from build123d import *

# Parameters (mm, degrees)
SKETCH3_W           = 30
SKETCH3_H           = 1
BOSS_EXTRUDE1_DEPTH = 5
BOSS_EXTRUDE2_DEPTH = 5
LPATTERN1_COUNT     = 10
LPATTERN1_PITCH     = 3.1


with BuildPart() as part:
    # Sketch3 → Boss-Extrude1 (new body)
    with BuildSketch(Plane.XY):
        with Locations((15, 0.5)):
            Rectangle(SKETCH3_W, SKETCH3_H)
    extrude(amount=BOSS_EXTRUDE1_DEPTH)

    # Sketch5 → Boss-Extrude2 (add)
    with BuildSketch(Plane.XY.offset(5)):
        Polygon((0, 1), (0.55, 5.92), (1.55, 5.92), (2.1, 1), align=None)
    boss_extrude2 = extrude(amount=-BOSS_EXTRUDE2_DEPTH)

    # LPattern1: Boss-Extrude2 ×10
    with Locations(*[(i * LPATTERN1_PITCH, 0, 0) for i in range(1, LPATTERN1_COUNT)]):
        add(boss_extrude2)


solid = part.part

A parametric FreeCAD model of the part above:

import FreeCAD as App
import Part
import Sketcher
from FreeCAD import Vector
Q = App.Units.Quantity


def add_polygon(sketch, points):
    """Adds a closed chain of lines whose ends are joined by coincident constraints."""
    first, n = sketch.GeometryCount, len(points)
    for a, b in zip(points, points[1:] + points[:1]):
        sketch.addGeometry(Part.LineSegment(App.Vector(*a, 0), App.Vector(*b, 0)), False)
    for i in range(n):
        sketch.addConstraint(Sketcher.Constraint("Coincident", first + i, 2, first + (i + 1) % n, 1))

doc = App.newDocument("Part")
body = doc.addObject("PartDesign::Body", "Body")

# Sketch on XY plane
sketch1 = body.newObject("Sketcher::SketchObject", "Sketch")
sketch1.AttachmentSupport = (doc.getObject("XY_Plane"), [""])
sketch1.MapMode = "FlatFace"
add_polygon(sketch1, [(0, 1), (0, 0), (30, 0), (30, 1)])  # lines 0-3
sketch1.addConstraint([
    Sketcher.Constraint("Vertical", 0),
    Sketcher.Constraint("Horizontal", 1),
    Sketcher.Constraint("Vertical", 2),
    Sketcher.Constraint("Horizontal", 3),
    Sketcher.Constraint("Coincident", 0, 2, -1, 1),
    Sketcher.Constraint("DistanceX", 1, 1, 1, 2, Q("30 mm")),
    Sketcher.Constraint("DistanceY", 0, 2, 0, 1, Q("1 mm")),
])
pad1 = body.newObject("PartDesign::Pad", "Pad")
pad1.Profile = sketch1
pad1.Length = 5

# Sketch on XY plane
sketch2 = body.newObject("Sketcher::SketchObject", "Sketch001")
sketch2.AttachmentSupport = (doc.getObject("XY_Plane"), [""])
sketch2.MapMode = "FlatFace"
sketch2.AttachmentOffset = App.Placement(Vector(0, 0, 5), App.Rotation())
add_polygon(sketch2, [(0.6, 5.9), (0, 1), (2.1, 1), (1.6, 5.9)])  # lines 0-3
sketch2.addConstraint([
    Sketcher.Constraint("Horizontal", 1),
    Sketcher.Constraint("Horizontal", 3),
    Sketcher.Constraint("PointOnObject", 0, 2, -2),
    Sketcher.Constraint("Equal", 0, 2),
    Sketcher.Constraint("DistanceX", 3, 2, 3, 1, Q("1 mm")),
    Sketcher.Constraint("DistanceX", 1, 1, 1, 2, Q("2.1 mm")),
    Sketcher.Constraint("DistanceY", -1, 1, 0, 2, Q("1 mm")),
    Sketcher.Constraint("DistanceY", -1, 1, 2, 2, Q("5.92 mm")),
])
pad2 = body.newObject("PartDesign::Pad", "Pad001")
pad2.Profile = sketch2
pad2.Length = 5
pad2.Reversed = True
doc.recompute()

linearpattern = body.newObject("PartDesign::LinearPattern", "LinearPattern")
linearpattern.Originals = [pad2]
linearpattern.Direction = (doc.getObject("X_Axis"), [""])
linearpattern.Mode = "offset"
linearpattern.Offset = 3.1
linearpattern.Occurrences = 10
body.Tip = linearpattern

doc.recompute()
